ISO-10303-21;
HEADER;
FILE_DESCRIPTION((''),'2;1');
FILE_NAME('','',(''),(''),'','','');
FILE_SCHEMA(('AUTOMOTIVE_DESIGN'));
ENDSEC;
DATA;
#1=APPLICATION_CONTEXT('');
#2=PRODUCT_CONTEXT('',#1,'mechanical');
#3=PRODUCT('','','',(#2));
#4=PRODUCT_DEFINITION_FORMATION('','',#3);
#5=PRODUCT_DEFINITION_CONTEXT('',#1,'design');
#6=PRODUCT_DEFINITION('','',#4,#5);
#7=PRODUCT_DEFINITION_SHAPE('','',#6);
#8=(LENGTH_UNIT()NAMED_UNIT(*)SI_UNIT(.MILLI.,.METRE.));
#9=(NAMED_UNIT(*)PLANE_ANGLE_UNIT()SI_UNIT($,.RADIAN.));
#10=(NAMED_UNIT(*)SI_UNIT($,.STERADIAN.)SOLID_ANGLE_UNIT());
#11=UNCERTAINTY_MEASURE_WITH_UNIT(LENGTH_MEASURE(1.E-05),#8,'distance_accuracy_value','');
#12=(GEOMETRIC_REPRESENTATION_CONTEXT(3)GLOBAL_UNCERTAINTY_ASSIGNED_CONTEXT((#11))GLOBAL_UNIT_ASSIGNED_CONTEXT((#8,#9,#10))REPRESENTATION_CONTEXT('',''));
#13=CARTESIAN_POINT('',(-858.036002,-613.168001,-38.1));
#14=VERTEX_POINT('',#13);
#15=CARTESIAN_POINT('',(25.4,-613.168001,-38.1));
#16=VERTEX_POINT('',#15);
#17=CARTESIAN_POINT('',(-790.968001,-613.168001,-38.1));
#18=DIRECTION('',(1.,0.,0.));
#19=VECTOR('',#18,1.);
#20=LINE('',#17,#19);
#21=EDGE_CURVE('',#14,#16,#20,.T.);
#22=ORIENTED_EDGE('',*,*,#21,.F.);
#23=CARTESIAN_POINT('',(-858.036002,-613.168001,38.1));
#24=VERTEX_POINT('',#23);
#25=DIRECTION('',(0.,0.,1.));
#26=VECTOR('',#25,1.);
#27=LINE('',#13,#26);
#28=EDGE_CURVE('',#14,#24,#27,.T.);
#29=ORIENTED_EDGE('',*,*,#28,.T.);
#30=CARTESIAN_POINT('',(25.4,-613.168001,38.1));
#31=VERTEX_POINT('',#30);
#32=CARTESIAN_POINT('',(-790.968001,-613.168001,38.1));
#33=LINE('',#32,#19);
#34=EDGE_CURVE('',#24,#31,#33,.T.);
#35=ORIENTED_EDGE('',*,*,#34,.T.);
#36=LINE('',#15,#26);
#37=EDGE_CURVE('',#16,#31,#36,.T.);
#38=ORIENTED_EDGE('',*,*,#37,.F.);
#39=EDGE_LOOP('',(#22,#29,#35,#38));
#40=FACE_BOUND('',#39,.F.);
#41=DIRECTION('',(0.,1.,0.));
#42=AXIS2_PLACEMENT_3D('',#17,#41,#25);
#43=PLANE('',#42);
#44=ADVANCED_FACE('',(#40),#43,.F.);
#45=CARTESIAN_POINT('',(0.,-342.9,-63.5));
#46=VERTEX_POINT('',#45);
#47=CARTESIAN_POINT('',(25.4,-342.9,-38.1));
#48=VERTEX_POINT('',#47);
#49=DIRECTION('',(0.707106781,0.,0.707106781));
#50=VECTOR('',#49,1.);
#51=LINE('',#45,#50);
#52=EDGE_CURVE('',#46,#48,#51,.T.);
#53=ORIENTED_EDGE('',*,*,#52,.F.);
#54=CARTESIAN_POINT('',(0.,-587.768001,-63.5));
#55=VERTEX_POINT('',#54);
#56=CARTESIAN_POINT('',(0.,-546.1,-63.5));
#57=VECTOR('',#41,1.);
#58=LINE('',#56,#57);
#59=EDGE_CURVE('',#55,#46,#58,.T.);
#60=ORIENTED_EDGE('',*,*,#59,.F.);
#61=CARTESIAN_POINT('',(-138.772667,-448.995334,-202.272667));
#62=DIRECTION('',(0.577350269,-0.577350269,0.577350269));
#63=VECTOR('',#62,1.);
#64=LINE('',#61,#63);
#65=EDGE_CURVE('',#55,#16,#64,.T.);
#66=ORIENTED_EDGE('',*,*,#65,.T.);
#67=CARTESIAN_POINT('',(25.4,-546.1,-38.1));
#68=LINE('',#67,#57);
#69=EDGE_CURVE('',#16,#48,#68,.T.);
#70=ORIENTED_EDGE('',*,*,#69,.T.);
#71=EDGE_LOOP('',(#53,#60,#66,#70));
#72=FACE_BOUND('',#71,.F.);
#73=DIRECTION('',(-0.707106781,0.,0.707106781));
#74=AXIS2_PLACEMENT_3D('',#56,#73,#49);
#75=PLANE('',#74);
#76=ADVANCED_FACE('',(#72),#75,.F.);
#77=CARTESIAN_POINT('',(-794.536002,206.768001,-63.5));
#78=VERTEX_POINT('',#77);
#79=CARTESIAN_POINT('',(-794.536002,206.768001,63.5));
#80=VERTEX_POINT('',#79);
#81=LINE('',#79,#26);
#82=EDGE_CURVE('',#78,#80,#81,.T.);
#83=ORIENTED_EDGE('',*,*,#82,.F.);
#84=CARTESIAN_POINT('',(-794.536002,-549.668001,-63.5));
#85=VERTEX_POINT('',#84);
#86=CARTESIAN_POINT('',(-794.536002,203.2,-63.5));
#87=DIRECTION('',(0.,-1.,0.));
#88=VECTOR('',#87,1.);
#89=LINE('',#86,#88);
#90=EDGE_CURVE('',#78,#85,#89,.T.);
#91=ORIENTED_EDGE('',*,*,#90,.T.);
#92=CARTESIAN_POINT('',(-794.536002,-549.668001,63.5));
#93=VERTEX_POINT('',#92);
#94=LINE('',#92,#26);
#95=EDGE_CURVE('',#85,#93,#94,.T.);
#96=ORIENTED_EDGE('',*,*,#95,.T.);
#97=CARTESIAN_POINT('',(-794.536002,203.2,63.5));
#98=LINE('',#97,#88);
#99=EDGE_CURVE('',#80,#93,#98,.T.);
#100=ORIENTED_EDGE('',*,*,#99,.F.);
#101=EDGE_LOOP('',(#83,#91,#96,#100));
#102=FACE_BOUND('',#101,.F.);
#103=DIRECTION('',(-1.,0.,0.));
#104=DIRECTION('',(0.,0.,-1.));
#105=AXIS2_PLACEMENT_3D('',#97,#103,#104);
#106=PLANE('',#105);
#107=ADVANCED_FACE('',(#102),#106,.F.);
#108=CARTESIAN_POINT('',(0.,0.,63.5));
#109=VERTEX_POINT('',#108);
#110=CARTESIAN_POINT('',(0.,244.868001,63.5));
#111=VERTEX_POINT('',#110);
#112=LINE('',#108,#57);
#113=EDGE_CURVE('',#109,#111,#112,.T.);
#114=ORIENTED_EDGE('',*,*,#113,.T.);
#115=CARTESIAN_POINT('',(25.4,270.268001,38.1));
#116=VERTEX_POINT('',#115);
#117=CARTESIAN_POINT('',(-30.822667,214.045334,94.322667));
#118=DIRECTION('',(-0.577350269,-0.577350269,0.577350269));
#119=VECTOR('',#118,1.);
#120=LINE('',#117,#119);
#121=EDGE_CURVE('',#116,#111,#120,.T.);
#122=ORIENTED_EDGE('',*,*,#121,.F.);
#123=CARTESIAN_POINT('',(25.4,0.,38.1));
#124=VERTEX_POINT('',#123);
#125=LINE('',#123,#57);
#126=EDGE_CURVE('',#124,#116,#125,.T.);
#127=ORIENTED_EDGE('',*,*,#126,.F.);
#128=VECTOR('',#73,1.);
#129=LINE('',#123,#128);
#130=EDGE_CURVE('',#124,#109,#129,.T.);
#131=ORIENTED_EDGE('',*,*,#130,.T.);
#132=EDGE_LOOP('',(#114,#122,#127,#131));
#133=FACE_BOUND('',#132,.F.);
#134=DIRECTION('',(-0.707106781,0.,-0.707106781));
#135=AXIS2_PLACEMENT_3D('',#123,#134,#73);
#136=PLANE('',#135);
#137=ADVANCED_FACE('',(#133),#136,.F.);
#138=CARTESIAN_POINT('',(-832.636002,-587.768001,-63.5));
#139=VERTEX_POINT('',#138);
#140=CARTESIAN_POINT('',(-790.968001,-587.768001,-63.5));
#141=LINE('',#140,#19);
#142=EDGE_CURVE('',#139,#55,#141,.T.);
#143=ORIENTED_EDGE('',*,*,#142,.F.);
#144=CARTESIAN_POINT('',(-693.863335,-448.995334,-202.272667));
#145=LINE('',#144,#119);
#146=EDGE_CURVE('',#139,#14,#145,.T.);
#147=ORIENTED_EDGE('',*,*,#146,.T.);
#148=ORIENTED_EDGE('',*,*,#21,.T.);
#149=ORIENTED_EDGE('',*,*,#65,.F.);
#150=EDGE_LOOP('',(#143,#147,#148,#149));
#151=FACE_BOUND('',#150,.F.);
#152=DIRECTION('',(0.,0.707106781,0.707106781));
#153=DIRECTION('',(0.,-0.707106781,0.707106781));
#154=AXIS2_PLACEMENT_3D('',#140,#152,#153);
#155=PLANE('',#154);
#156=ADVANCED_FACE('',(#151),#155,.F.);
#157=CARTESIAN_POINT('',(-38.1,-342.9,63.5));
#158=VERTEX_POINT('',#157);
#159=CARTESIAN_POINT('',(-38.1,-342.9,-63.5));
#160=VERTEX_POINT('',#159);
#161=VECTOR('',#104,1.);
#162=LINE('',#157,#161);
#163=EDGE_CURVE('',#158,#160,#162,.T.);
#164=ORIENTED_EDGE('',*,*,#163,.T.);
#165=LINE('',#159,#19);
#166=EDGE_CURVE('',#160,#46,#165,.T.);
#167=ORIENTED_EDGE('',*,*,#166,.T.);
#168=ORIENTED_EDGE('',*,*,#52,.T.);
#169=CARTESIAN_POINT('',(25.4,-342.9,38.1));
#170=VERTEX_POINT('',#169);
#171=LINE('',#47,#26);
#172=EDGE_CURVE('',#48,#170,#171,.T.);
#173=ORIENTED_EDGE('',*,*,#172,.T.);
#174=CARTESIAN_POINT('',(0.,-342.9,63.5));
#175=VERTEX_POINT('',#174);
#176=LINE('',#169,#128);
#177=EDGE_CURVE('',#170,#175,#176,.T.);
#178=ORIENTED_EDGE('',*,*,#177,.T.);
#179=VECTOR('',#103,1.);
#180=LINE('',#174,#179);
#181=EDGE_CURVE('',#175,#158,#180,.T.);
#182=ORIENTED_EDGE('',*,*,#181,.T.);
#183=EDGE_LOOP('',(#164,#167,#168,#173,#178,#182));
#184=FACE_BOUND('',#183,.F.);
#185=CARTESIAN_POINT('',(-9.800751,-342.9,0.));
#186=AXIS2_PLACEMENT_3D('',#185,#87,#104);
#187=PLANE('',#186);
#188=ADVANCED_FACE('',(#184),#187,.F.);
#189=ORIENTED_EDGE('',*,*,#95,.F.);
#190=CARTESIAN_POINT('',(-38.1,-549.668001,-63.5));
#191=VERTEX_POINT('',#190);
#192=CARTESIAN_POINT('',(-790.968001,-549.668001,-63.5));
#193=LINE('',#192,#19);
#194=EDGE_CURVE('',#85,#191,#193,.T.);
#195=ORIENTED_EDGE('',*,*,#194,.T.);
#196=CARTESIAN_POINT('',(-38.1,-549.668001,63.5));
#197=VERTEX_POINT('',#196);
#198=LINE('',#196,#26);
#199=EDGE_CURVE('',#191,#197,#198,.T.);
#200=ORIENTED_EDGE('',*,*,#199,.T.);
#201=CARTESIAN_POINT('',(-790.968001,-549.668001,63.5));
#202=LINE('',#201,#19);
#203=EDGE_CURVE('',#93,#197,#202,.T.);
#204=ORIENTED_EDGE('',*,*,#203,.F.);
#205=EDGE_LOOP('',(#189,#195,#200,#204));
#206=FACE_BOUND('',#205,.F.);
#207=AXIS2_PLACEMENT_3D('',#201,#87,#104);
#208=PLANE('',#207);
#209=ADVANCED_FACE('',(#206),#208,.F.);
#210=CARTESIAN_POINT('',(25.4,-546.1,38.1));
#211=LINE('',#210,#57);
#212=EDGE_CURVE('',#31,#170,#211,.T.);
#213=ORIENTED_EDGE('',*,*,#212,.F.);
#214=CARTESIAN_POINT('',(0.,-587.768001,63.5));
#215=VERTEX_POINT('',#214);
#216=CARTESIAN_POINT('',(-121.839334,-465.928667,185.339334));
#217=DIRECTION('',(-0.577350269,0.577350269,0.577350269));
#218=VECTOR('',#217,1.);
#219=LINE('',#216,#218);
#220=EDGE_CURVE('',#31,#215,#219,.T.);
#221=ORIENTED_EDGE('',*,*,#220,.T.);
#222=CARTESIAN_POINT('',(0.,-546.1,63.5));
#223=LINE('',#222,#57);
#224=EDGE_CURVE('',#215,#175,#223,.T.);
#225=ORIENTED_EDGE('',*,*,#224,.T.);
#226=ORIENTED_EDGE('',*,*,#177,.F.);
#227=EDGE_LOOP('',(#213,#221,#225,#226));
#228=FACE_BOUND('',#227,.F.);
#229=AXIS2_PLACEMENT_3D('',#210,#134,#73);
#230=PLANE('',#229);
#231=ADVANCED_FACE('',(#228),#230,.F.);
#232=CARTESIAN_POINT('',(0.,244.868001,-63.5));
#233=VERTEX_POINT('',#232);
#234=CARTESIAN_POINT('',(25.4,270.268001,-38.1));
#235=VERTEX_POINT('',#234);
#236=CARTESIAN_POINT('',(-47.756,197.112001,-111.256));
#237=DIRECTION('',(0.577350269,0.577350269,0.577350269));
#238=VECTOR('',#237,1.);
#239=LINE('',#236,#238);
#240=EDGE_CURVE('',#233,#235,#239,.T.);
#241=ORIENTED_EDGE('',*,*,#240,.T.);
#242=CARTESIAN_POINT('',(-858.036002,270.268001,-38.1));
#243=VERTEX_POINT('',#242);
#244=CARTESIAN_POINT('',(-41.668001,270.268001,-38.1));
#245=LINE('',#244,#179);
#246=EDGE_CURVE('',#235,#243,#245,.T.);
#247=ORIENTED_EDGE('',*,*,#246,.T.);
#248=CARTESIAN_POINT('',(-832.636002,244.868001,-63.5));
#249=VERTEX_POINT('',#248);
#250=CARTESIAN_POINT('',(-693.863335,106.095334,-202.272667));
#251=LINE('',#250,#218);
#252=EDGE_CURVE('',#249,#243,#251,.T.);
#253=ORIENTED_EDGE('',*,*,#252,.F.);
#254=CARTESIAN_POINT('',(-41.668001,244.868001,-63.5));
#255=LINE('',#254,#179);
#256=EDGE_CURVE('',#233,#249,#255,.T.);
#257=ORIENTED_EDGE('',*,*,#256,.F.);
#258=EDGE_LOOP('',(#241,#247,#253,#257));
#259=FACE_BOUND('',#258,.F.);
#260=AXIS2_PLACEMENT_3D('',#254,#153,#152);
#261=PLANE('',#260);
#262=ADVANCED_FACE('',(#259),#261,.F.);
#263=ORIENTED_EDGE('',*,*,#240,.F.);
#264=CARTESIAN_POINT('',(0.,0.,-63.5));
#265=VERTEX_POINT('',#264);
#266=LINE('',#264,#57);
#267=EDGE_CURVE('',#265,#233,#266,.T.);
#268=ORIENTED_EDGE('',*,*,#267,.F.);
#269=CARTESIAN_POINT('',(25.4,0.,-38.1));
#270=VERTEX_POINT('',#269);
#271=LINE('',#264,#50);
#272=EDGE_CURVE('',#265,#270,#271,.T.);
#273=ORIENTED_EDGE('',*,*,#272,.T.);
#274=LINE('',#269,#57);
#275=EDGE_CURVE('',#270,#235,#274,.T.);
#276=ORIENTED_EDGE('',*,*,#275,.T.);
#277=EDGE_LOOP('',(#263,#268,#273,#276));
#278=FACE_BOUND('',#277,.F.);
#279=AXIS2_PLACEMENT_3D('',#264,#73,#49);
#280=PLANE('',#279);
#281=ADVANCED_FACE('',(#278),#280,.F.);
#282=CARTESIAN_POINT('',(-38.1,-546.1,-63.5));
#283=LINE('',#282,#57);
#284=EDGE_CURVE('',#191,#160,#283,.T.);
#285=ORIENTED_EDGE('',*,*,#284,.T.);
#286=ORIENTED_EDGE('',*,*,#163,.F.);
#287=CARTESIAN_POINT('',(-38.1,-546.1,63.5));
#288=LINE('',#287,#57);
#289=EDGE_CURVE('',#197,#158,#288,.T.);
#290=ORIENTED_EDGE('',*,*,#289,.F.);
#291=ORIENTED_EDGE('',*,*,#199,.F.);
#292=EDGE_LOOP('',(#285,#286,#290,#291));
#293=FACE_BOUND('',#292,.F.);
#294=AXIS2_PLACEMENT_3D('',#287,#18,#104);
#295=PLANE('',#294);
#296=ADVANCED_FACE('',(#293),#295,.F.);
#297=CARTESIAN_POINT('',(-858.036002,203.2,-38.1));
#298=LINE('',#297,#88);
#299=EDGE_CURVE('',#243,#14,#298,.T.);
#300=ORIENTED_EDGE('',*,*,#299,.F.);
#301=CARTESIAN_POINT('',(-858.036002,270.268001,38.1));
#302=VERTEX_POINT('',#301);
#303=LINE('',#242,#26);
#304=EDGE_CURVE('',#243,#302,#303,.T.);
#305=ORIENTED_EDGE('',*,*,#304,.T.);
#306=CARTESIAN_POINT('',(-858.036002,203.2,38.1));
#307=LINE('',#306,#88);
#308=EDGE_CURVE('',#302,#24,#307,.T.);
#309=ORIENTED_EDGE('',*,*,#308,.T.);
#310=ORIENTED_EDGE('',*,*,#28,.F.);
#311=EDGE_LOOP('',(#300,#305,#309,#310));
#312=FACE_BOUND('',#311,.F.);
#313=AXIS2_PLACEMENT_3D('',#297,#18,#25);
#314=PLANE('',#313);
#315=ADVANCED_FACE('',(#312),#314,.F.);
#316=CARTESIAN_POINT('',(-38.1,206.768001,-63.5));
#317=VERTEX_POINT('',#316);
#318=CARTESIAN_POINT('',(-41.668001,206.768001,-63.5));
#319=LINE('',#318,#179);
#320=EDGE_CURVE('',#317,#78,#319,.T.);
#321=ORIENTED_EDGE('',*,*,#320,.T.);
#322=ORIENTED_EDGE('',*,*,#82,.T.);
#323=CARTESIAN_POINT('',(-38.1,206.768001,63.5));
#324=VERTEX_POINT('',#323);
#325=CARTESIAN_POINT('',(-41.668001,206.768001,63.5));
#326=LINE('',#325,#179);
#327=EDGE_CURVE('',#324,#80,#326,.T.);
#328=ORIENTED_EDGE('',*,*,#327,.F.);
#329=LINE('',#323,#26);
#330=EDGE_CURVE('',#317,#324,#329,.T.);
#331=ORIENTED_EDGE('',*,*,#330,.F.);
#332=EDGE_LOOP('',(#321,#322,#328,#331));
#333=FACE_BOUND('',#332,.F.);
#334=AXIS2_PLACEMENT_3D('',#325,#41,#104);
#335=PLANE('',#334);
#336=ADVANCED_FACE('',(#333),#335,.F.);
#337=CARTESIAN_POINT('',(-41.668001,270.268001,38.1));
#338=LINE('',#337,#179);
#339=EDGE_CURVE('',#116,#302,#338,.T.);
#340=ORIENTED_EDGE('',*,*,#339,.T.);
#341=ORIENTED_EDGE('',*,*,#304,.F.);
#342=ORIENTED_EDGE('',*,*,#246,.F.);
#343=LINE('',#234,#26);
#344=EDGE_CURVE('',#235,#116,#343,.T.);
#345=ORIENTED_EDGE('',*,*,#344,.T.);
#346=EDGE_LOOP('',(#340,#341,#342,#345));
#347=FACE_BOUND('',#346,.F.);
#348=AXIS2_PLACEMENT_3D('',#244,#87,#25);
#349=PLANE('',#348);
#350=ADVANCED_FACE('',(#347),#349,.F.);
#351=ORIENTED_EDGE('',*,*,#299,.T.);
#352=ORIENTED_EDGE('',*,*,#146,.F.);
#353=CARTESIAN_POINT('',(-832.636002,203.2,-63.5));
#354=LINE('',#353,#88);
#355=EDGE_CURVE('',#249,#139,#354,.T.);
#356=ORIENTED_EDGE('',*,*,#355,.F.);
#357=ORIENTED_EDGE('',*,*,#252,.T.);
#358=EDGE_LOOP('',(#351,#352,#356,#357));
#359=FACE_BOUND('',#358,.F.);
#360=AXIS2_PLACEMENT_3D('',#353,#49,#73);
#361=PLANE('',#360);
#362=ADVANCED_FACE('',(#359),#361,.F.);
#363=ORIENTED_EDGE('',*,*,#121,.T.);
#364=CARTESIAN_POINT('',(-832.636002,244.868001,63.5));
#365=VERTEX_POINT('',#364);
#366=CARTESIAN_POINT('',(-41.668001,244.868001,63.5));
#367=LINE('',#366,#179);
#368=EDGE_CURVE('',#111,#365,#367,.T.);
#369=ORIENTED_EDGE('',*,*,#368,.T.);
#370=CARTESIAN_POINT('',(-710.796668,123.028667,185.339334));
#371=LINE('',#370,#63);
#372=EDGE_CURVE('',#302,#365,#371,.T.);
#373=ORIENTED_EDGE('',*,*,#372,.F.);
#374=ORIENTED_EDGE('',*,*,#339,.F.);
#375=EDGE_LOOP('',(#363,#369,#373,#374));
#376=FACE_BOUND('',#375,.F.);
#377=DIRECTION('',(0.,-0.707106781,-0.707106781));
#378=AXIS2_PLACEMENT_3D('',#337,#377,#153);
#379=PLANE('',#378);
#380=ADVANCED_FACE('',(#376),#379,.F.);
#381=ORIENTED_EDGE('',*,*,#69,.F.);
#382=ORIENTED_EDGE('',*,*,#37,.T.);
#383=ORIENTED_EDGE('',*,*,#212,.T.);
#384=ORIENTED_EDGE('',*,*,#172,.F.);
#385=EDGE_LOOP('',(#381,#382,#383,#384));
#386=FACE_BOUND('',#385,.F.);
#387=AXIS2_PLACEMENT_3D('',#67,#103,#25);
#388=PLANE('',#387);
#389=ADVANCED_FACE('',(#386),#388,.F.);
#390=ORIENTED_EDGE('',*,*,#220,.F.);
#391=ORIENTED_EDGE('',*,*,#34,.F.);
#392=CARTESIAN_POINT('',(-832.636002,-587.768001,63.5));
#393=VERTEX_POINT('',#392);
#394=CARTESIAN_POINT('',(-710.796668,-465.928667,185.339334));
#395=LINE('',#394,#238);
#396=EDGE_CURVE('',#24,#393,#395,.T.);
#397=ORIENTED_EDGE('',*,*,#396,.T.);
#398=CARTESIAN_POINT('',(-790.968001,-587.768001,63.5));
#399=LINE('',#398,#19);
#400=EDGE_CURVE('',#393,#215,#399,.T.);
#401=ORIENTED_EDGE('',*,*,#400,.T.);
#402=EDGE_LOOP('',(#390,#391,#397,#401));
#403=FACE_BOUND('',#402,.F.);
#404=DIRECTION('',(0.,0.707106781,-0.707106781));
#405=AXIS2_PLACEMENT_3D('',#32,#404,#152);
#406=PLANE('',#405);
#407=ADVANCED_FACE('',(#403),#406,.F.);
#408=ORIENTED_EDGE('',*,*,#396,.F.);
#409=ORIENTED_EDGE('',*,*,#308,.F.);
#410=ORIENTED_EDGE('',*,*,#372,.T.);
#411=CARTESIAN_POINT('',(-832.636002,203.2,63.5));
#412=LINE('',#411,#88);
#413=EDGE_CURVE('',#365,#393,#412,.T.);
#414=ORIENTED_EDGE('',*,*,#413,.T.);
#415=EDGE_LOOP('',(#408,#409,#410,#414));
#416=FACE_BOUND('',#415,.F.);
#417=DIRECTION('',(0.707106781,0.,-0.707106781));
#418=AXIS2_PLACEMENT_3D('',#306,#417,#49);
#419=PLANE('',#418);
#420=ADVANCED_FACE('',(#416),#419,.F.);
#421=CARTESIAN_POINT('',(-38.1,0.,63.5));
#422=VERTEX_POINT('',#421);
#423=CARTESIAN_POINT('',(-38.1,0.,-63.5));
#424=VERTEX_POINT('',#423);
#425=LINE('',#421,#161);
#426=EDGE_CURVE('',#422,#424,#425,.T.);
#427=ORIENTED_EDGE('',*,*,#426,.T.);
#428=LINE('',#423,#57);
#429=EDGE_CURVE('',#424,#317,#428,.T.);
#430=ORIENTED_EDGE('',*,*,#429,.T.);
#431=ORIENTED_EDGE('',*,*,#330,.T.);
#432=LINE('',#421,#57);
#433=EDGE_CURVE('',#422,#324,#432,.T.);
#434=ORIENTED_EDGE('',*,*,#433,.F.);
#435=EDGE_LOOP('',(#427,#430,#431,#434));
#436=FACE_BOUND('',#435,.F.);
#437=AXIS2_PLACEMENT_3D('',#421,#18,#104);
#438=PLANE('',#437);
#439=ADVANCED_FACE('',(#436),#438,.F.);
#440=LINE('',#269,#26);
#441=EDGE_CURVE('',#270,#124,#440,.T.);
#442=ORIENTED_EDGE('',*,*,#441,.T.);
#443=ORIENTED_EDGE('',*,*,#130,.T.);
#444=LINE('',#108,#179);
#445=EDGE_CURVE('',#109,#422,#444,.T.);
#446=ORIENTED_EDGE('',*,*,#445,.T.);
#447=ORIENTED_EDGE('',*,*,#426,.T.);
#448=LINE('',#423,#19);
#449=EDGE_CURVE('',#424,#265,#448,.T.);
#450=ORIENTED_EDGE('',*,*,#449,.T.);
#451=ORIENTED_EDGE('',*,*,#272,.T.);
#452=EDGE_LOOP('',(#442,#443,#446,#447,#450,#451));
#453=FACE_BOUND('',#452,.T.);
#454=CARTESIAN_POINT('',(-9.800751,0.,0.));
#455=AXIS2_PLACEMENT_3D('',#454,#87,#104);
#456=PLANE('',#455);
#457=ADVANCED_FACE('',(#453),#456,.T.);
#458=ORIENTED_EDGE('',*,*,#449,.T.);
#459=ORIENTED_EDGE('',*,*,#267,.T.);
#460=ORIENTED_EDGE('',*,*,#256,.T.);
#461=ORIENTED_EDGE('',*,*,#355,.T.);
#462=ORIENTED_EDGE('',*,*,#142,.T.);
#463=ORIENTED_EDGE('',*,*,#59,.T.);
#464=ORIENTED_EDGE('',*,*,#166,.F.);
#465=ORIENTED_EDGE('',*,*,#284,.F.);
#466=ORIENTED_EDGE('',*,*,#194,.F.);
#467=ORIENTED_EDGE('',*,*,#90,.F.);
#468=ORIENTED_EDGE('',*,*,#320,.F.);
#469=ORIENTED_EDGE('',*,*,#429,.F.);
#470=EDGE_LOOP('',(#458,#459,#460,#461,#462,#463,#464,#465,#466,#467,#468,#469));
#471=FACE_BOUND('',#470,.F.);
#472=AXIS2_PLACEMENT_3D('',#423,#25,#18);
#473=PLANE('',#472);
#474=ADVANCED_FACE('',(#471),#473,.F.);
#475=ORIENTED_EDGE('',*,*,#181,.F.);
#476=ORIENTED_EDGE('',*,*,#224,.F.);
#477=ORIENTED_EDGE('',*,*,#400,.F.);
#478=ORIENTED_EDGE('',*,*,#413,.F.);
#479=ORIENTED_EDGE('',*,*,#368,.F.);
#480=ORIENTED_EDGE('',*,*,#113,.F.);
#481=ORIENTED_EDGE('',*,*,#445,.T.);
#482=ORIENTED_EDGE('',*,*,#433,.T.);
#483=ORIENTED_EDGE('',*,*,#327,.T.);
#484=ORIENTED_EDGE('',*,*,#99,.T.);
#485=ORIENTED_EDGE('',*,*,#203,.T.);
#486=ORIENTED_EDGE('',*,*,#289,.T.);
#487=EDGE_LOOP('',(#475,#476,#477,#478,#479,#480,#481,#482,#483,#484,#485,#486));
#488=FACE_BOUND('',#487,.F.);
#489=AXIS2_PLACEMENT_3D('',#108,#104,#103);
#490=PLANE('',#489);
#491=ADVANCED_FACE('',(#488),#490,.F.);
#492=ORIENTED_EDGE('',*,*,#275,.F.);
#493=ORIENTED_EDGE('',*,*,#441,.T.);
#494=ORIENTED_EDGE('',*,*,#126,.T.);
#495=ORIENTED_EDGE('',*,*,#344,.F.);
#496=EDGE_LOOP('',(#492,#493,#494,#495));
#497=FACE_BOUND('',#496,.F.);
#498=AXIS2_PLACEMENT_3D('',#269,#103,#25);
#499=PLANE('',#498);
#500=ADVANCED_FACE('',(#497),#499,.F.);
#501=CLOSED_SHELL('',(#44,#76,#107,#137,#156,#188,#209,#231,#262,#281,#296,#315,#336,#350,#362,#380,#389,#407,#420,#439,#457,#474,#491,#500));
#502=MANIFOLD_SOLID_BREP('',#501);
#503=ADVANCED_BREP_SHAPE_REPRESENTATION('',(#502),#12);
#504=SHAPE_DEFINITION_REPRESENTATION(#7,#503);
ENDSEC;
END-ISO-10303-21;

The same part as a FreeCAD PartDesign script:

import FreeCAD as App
import Part
import Sketcher
from FreeCAD import Vector
Q = App.Units.Quantity

doc = App.newDocument("Part")
body = doc.addObject("PartDesign::Body", "Body")

# Sketch on XZ plane
sketch1 = body.newObject("Sketcher::SketchObject", "Sketch")
sketch1.AttachmentSupport = (doc.getObject("XZ_Plane"), [""])
sketch1.MapMode = "FlatFace"
sketch1.addGeometry([
    Part.LineSegment(Vector(0, 64, 0), Vector(-38, 64, 0)),  # 0
    Part.LineSegment(Vector(-38, 64, 0), Vector(-38, -64, 0)),  # 1
    Part.LineSegment(Vector(-38, -64, 0), Vector(0, -64, 0)),  # 2
    Part.LineSegment(Vector(0, -64, 0), Vector(25, -38, 0)),  # 3
    Part.LineSegment(Vector(25, -38, 0), Vector(25, 38, 0)),  # 4
    Part.LineSegment(Vector(25, 38, 0), Vector(0, 64, 0)),  # 5
], False)
sketch1.addConstraint([
    Sketcher.Constraint("Coincident", 0, 2, 1, 1),
    Sketcher.Constraint("Coincident", 1, 2, 2, 1),
    Sketcher.Constraint("Coincident", 2, 2, 3, 1),
    Sketcher.Constraint("Coincident", 3, 2, 4, 1),
    Sketcher.Constraint("Coincident", 4, 2, 5, 1),
    Sketcher.Constraint("Coincident", 5, 2, 0, 1),
    Sketcher.Constraint("Horizontal", 0),
    Sketcher.Constraint("Vertical", 1),
    Sketcher.Constraint("Horizontal", 2),
    Sketcher.Constraint("Vertical", 4),
    Sketcher.Constraint("Symmetric", 2, 2, 5, 2, -1, 1),
    Sketcher.Constraint("PointOnObject", 2, 2, -2),
    Sketcher.Constraint("Perpendicular", 3, 5),
    Sketcher.Constraint("Equal", 3, 5),
    Sketcher.Constraint("DistanceY", 1, 2, 1, 1, Q("5 in")),
    Sketcher.Constraint("DistanceY", 4, 1, 4, 2, Q("3 in")),
    Sketcher.Constraint("DistanceX", 0, 2, 0, 1, Q("1.5 in")),
])

# Sketch on XY plane
sketch2 = body.newObject("Sketcher::SketchObject", "Sketch001")
sketch2.AttachmentSupport = (doc.getObject("XY_Plane"), [""])
sketch2.MapMode = "FlatFace"
sketch2.addGeometry([
    Part.LineSegment(Vector(-42, 0, 0), Vector(-42, 203, 0)),  # 0
    Part.LineSegment(Vector(-42, 203, 0), Vector(-791, 203, 0)),  # 1
    Part.LineSegment(Vector(-791, 203, 0), Vector(-791, -546, 0)),  # 2
    Part.LineSegment(Vector(-791, -546, 0), Vector(-42, -546, 0)),  # 3
    Part.LineSegment(Vector(-42, -546, 0), Vector(-42, -343, 0)),  # 4
], False)
sketch2.addConstraint([
    Sketcher.Constraint("Coincident", 0, 2, 1, 1),
    Sketcher.Constraint("Coincident", 1, 2, 2, 1),
    Sketcher.Constraint("Coincident", 2, 2, 3, 1),
    Sketcher.Constraint("Coincident", 3, 2, 4, 1),
    Sketcher.Constraint("Vertical", 0),
    Sketcher.Constraint("Horizontal", 1),
    Sketcher.Constraint("Vertical", 2),
    Sketcher.Constraint("Horizontal", 3),
    Sketcher.Constraint("Vertical", 4),
    Sketcher.Constraint("PointOnObject", 0, 1, -1),
    Sketcher.Constraint("Vertical", 0, 2, 3, 2),
    Sketcher.Constraint("Equal", 3, 2),
    Sketcher.Constraint("Equal", 0, 4),
    Sketcher.Constraint("DistanceY", 0, 1, 0, 2, Q("8 in")),
    Sketcher.Constraint("DistanceX", 1, 2, 1, 1, Q("29.5 in")),
    Sketcher.Constraint("DistanceX", 0, 1, -1, 1, Q("41.668001 mm")),
])
doc.recompute()

additivepipe = body.newObject("PartDesign::AdditivePipe", "AdditivePipe")
additivepipe.Profile = sketch1
additivepipe.Spine = (sketch2, ["Edge1", "Edge2", "Edge3", "Edge4", "Edge5"])
additivepipe.Transition = "Right corner"

doc.recompute()
